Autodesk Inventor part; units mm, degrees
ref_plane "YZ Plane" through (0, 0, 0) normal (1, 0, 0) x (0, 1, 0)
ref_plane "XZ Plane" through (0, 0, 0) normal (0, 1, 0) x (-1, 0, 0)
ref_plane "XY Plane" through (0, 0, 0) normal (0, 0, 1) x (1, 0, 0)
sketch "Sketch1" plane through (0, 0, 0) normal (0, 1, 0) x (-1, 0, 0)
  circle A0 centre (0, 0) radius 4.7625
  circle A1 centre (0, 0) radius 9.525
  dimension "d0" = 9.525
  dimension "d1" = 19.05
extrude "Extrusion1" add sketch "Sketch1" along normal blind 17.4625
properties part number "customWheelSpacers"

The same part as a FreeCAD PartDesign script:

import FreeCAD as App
import Part
import Sketcher
from FreeCAD import Vector
Q = App.Units.Quantity

doc = App.newDocument("Part")
params = doc.addObject("Spreadsheet::Sheet", "Params")
for row, (alias, value) in enumerate([
    ("sketch1_diameter", "0.75 in"),
    ("sketch1_diameter2", "0.375 in"),
    ("pad1_length", "0.6875 in"),
], start=1):
    params.set(f"A{row}", alias)
    params.set(f"B{row}", "=" + value)
    params.setAlias(f"B{row}", alias)

body = doc.addObject("PartDesign::Body", "Body")

sketch1 = doc.addObject("Sketcher::SketchObject", "Sketch")
body.addObject(sketch1)
sketch1.AttachmentSupport = (doc.XZ_Plane, [""])
sketch1.MapMode = "FlatFace"
sketch1.addGeometry([
    Part.Circle(Vector(0, 0, 0), Vector(0, 0, 1), 9.525),
    Part.Circle(Vector(0, 0, 0), Vector(0, 0, 1), 4.7625),
], False)
sketch1.addConstraint([
    Sketcher.Constraint("Coincident", 0, 3, -1, 1),
    Sketcher.Constraint("Coincident", 1, 3, -1, 1),
    Sketcher.Constraint("Diameter", 0, Q("0.75 in")),
    Sketcher.Constraint("Diameter", 1, Q("0.375 in")),
])
sketch1.setExpression("Constraints[2]", "Params.sketch1_diameter")
sketch1.setExpression("Constraints[3]", "Params.sketch1_diameter2")
pad1 = doc.addObject("PartDesign::Pad", "Pad")
body.addObject(pad1)
pad1.Profile = sketch1
pad1.setExpression("Length", "Params.pad1_length")
pad1.Reversed = True

doc.recompute()
